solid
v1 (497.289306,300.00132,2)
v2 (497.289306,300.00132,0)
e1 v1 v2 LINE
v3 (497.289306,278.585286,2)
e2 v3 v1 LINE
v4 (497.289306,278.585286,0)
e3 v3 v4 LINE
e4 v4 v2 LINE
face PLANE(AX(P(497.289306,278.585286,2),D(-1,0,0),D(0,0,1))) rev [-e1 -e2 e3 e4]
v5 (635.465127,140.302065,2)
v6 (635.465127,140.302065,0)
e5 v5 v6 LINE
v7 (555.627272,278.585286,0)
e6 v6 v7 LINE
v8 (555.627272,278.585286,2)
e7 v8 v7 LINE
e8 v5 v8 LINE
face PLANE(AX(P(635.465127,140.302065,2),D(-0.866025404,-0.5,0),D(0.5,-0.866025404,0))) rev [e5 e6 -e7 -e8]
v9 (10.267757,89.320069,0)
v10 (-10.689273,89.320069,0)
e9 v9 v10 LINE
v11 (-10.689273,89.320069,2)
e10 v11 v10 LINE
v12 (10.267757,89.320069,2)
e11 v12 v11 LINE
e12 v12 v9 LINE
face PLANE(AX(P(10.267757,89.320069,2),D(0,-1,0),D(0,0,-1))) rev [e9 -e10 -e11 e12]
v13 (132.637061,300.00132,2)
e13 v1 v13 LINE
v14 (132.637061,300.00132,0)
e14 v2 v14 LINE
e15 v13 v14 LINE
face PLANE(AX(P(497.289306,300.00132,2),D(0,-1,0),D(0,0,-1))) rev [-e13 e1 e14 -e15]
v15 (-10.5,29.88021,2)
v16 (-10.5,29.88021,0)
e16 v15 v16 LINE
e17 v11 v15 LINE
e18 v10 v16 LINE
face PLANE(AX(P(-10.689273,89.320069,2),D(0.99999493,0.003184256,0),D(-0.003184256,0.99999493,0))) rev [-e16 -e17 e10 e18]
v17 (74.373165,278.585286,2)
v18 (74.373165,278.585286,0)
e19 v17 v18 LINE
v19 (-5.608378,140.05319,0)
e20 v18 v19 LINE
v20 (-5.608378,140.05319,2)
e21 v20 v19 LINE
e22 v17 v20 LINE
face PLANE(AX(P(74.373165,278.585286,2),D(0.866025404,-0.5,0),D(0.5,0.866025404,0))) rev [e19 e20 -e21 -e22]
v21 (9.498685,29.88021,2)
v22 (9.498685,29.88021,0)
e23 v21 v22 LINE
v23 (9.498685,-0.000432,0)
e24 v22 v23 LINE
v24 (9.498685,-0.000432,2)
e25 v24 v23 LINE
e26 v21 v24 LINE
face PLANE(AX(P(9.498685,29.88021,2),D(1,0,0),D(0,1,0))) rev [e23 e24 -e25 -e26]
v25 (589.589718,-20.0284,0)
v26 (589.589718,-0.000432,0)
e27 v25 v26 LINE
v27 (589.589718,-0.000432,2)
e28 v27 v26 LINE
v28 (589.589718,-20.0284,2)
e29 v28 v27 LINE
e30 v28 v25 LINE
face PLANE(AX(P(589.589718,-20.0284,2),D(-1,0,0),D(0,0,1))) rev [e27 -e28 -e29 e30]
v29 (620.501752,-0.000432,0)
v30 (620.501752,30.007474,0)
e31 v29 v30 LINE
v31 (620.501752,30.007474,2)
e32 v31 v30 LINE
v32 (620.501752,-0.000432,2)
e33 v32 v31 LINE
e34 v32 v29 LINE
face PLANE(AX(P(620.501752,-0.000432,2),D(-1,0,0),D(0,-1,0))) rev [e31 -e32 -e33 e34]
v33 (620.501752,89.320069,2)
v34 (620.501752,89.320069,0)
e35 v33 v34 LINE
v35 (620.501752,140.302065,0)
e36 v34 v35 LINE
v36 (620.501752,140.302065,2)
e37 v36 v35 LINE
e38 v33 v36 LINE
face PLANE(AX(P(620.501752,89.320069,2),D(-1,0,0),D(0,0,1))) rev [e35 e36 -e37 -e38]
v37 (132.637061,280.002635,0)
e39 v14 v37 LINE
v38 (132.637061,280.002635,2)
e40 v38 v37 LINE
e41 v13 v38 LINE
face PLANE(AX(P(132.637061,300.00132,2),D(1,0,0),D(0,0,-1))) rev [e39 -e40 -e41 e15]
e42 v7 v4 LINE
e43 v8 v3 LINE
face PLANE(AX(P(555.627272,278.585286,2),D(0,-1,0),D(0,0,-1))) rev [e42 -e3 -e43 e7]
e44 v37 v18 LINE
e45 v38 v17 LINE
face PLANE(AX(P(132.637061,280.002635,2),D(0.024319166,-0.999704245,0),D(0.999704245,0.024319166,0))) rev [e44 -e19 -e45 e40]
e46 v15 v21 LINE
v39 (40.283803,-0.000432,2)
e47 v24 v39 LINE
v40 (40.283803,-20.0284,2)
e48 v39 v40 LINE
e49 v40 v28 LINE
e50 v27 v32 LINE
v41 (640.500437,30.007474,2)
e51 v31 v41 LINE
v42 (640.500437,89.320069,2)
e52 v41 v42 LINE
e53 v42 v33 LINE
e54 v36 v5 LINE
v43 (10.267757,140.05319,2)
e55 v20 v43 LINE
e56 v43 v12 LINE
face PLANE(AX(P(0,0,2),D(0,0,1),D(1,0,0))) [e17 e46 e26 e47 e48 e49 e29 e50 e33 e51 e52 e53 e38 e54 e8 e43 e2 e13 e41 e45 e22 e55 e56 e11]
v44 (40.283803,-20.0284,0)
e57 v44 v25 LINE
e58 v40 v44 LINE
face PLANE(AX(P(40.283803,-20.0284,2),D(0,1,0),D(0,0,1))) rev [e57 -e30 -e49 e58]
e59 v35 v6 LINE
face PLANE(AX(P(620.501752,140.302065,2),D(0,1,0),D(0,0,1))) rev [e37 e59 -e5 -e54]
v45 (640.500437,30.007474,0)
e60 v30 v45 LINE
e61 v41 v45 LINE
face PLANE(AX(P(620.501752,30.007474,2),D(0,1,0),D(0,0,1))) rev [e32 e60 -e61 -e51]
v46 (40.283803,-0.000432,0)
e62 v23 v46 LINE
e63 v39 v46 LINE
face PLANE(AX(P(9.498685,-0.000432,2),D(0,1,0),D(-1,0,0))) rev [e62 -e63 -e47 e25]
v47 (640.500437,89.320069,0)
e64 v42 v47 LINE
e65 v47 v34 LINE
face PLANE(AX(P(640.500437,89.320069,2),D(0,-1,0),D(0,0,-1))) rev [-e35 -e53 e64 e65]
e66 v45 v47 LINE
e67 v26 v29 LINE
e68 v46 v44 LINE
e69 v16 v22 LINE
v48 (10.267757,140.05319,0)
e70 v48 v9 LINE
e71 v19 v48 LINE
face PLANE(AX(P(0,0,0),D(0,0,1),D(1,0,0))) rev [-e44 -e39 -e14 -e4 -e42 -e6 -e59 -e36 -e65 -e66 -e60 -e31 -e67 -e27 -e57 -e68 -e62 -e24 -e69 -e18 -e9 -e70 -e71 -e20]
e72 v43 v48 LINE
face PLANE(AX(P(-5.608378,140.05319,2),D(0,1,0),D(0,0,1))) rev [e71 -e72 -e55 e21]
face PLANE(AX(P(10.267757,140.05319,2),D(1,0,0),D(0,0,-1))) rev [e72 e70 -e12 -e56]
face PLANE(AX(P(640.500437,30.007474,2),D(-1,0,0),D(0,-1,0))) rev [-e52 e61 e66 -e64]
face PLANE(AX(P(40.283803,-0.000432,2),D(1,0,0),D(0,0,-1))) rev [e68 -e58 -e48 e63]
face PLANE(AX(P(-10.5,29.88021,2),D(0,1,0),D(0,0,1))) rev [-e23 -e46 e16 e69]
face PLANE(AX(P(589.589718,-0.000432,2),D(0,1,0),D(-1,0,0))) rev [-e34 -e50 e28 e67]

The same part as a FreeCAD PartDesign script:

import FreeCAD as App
import Part
import Sketcher
Q = App.Units.Quantity


def add_polygon(sketch, points):
    """Adds a closed chain of lines whose ends are joined by coincident constraints."""
    first, n = sketch.GeometryCount, len(points)
    for a, b in zip(points, points[1:] + points[:1]):
        sketch.addGeometry(Part.LineSegment(App.Vector(*a, 0), App.Vector(*b, 0)), False)
    for i in range(n):
        sketch.addConstraint(Sketcher.Constraint("Coincident", first + i, 2, first + (i + 1) % n, 1))

doc = App.newDocument("Part")
body = doc.addObject("PartDesign::Body", "Body")

# Sketch on XY plane
sketch1 = body.newObject("Sketcher::SketchObject", "Sketch")
sketch1.AttachmentSupport = (doc.getObject("XY_Plane"), [""])
sketch1.MapMode = "FlatFace"
add_polygon(sketch1, [(621, 140), (635, 140), (556, 279), (497, 279), (497, 300), (133, 300), (133, 280), (74, 279), (-6, 140), (10, 140), (10, 89), (-11, 89), (-10, 30), (9, 30), (9, 0), (40, 0), (40, -20), (590, -20), (590, 0), (621, 0), (621, 30), (641, 30), (641, 89), (621, 89)])  # lines 0-23
sketch1.addConstraint([
    Sketcher.Constraint("Horizontal", 0),
    Sketcher.Constraint("Horizontal", 2),
    Sketcher.Constraint("Vertical", 3),
    Sketcher.Constraint("Horizontal", 4),
    Sketcher.Constraint("Vertical", 5),
    Sketcher.Constraint("Horizontal", 8),
    Sketcher.Constraint("Vertical", 9),
    Sketcher.Constraint("Horizontal", 10),
    Sketcher.Constraint("Horizontal", 12),
    Sketcher.Constraint("Vertical", 13),
    Sketcher.Constraint("Horizontal", 14),
    Sketcher.Constraint("Vertical", 15),
    Sketcher.Constraint("Horizontal", 16),
    Sketcher.Constraint("Vertical", 17),
    Sketcher.Constraint("Horizontal", 18),
    Sketcher.Constraint("Vertical", 19),
    Sketcher.Constraint("Horizontal", 20),
    Sketcher.Constraint("Vertical", 21),
    Sketcher.Constraint("Horizontal", 22),
    Sketcher.Constraint("Vertical", 23),
    Sketcher.Constraint("Horizontal", 2, 2, 6, 2),
    Sketcher.Constraint("Horizontal", 14, 2, 17, 2),
    Sketcher.Constraint("Horizontal", 10, 2, 21, 2),
    Sketcher.Constraint("Vertical", 19, 2, 22, 2),
    Sketcher.Constraint("Equal", 12, 20),
    Sketcher.Constraint("Equal", 22, 5),
    Sketcher.Constraint("Angle", 1, Q("120 deg")),
    Sketcher.Constraint("Angle", 7, Q("-120 deg")),
    Sketcher.Constraint("DistanceX", 11, 2, -1, 1, 10.5),
    Sketcher.Constraint("DistanceX", 10, 2, 10, 1, 20.95703),
    Sketcher.Constraint("DistanceX", 14, 1, 14, 2, 30.785118),
    Sketcher.Constraint("DistanceY", 9, 2, 9, 1, 50.73312),
    Sketcher.Constraint("DistanceY", 13, 2, 13, 1, 29.880642),
    Sketcher.Constraint("DistanceY", 15, 2, 15, 1, 20.027968),
    Sketcher.Constraint("DistanceY", 15, 2, -1, 1, 20.0284),
    Sketcher.Constraint("DistanceY", 13, 2, 9, 2, 89.320501),
    Sketcher.Constraint("Distance", 1, 159.67571),
    Sketcher.Constraint("DistanceX", 0, 1, 0, 2, 14.963375),
    Sketcher.Constraint("DistanceX", 2, 2, 2, 1, 58.337966),
    Sketcher.Constraint("DistanceX", 4, 2, 4, 1, 364.652245),
    Sketcher.Constraint("DistanceX", 8, 1, 8, 2, 15.876135),
    Sketcher.Constraint("DistanceX", 12, 1, 12, 2, 19.998685),
    Sketcher.Constraint("DistanceX", 16, 1, 16, 2, 549.305915),
    Sketcher.Constraint("DistanceX", 18, 1, 18, 2, 30.912034),
    Sketcher.Constraint("DistanceY", 3, 1, 3, 2, 21.416034),
    Sketcher.Constraint("DistanceY", 19, 1, 19, 2, 30.007906),
    Sketcher.Constraint("DistanceY", 23, 1, 23, 2, 50.981996),
    Sketcher.Constraint("DistanceX", 7, 2, -1, 1, 5.608378),
])
pad1 = body.newObject("PartDesign::Pad", "Pad")
pad1.Profile = sketch1
pad1.Length = 2

doc.recompute()
